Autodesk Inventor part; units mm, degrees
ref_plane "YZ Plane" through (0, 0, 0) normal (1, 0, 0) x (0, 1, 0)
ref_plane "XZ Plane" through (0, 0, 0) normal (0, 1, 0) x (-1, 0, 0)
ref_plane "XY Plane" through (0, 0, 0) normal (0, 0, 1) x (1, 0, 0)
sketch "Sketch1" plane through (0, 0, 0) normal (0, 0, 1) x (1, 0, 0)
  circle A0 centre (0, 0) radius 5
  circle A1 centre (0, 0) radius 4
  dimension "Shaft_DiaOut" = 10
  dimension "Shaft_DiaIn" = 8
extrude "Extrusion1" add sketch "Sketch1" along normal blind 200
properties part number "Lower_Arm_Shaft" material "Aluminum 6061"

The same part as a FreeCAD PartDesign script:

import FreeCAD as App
import Part
import Sketcher
from FreeCAD import Vector

doc = App.newDocument("Part")
body = doc.addObject("PartDesign::Body", "Body")

sketch1 = body.newObject("Sketcher::SketchObject", "Sketch")
sketch1.AttachmentSupport = (doc.getObject("XY_Plane"), [""])
sketch1.MapMode = "FlatFace"
sketch1.addGeometry(Part.Circle(Vector(0, 0, 0), Vector(0, 0, 1), 5), False)
sketch1.addGeometry(Part.Circle(Vector(0, 0, 0), Vector(0, 0, 1), 4), False)
sketch1.addConstraint(Sketcher.Constraint("Coincident", 0, 3, -1, 1))
sketch1.addConstraint(Sketcher.Constraint("Coincident", 1, 3, -1, 1))
sketch1.addConstraint(Sketcher.Constraint("Diameter", 0, 10.0))
sketch1.addConstraint(Sketcher.Constraint("Diameter", 1, 8.0))
pad1 = body.newObject("PartDesign::Pad", "Pad")
pad1.Profile = sketch1
pad1.Length = 200

doc.recompute()
